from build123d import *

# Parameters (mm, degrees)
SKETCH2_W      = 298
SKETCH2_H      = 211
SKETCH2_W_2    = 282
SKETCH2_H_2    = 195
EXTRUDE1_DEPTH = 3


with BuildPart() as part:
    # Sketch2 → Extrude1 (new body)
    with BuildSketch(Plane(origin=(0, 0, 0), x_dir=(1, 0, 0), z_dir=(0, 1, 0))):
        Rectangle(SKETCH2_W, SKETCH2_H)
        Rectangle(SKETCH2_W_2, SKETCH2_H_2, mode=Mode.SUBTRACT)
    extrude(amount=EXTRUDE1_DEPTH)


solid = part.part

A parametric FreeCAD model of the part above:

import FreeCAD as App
import Part
import Sketcher
Q = App.Units.Quantity

doc = App.newDocument("Part")
body = doc.addObject("PartDesign::Body", "Body")

# Sketch on XZ plane
sketch1 = body.newObject("Sketcher::SketchObject", "Sketch")
sketch1.AttachmentSupport = (doc.getObject("XZ_Plane"), [""])
sketch1.MapMode = "FlatFace"
sketch1.addGeometry([
    Part.LineSegment(App.Vector(-149, -106, 0), App.Vector(-149, 106, 0)),  # 0
    Part.LineSegment(App.Vector(-149, 106, 0), App.Vector(149, 106, 0)),  # 1
    Part.LineSegment(App.Vector(149, 106, 0), App.Vector(149, -106, 0)),  # 2
    Part.LineSegment(App.Vector(149, -106, 0), App.Vector(-149, -106, 0)),  # 3
    Part.LineSegment(App.Vector(141, 98, 0), App.Vector(-141, 98, 0)),  # 4
    Part.LineSegment(App.Vector(-141, 98, 0), App.Vector(-141, -98, 0)),  # 5
    Part.LineSegment(App.Vector(-141, -98, 0), App.Vector(141, -98, 0)),  # 6
    Part.LineSegment(App.Vector(141, -98, 0), App.Vector(141, 98, 0)),  # 7
], False)
sketch1.addConstraint([
    Sketcher.Constraint("Coincident", 0, 2, 1, 1),
    Sketcher.Constraint("Coincident", 1, 2, 2, 1),
    Sketcher.Constraint("Coincident", 2, 2, 3, 1),
    Sketcher.Constraint("Coincident", 3, 2, 0, 1),
    Sketcher.Constraint("Coincident", 4, 2, 5, 1),
    Sketcher.Constraint("Coincident", 5, 2, 6, 1),
    Sketcher.Constraint("Coincident", 6, 2, 7, 1),
    Sketcher.Constraint("Coincident", 7, 2, 4, 1),
    Sketcher.Constraint("Vertical", 0),
    Sketcher.Constraint("Horizontal", 1),
    Sketcher.Constraint("Vertical", 2),
    Sketcher.Constraint("Horizontal", 3),
    Sketcher.Constraint("Horizontal", 4),
    Sketcher.Constraint("Vertical", 5),
    Sketcher.Constraint("Horizontal", 6),
    Sketcher.Constraint("Vertical", 7),
    Sketcher.Constraint("Symmetric", 0, 2, 2, 2, -1, 1),
    Sketcher.Constraint("Symmetric", 4, 2, 6, 2, -1, 1),
    Sketcher.Constraint("DistanceX", 1, 1, 1, 2, Q("298 mm")),
    Sketcher.Constraint("DistanceX", 4, 2, 4, 1, Q("282 mm")),
    Sketcher.Constraint("DistanceY", 0, 1, 0, 2, Q("211 mm")),
    Sketcher.Constraint("DistanceY", 5, 2, 5, 1, Q("195 mm")),
])
pad1 = body.newObject("PartDesign::Pad", "Pad")
pad1.Profile = sketch1
pad1.Length = 3
pad1.Reversed = True

doc.recompute()
